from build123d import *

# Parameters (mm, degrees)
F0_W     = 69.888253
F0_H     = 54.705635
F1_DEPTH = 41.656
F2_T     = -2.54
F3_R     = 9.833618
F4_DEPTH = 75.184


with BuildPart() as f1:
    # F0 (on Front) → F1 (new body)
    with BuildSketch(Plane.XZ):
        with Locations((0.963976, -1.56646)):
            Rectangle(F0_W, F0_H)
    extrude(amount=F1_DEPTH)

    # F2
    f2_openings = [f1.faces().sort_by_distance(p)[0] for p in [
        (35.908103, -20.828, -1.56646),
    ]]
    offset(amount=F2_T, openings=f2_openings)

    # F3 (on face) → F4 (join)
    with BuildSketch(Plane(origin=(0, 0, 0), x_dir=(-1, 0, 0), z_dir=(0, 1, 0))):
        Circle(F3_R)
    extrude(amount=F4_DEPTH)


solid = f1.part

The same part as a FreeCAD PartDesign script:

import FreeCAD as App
import Part
import Sketcher

V = App.Vector
Q = App.Units.Quantity


def faces_at(feature, points):
    """Names of the faces that lie closest to the given points."""
    faces = feature.Shape.Faces
    near = lambda p: min(range(len(faces)), key=lambda i: faces[i].distToShape(Part.Vertex(*p))[0])
    return sorted({f"Face{near(p) + 1}" for p in points})


def add_polygon(sketch, points):
    """Adds a closed chain of lines whose ends are joined by coincident constraints."""
    first, n = sketch.GeometryCount, len(points)
    for a, b in zip(points, points[1:] + points[:1]):
        sketch.addGeometry(Part.LineSegment(App.Vector(*a, 0), App.Vector(*b, 0)), False)
    for i in range(n):
        sketch.addConstraint(Sketcher.Constraint("Coincident", first + i, 2, first + (i + 1) % n, 1))

doc = App.newDocument("Part")
params = doc.addObject("Spreadsheet::Sheet", "Params")
for row, (alias, value) in enumerate([
    ("pad1_length", "1.64 in"),
    ("thickness_wall", "0.1 in"),
    ("pad2_length", "2.96 in"),
], start=1):
    params.set(f"A{row}", alias)
    params.set(f"B{row}", "=" + value)
    params.setAlias(f"B{row}", alias)

body = doc.addObject("PartDesign::Body", "Body")

# Sketch on XZ plane
sketch1 = body.newObject("Sketcher::SketchObject", "Sketch")
sketch1.AttachmentSupport = (doc.getObject("XZ_Plane"), [""])
sketch1.MapMode = "FlatFace"
add_polygon(sketch1, [(-34, 26), (-34, -29), (36, -29), (36, 26)])  # lines 0-3
sketch1.addConstraint(Sketcher.Constraint("Vertical", 0))
sketch1.addConstraint(Sketcher.Constraint("Horizontal", 1))
sketch1.addConstraint(Sketcher.Constraint("Vertical", 2))
sketch1.addConstraint(Sketcher.Constraint("Horizontal", 3))
sketch1.addConstraint(Sketcher.Constraint("DistanceX", 1, 1, 1, 2, Q("69.888253 mm")))
sketch1.addConstraint(Sketcher.Constraint("DistanceY", 0, 2, 0, 1, Q("54.705635 mm")))
sketch1.addConstraint(Sketcher.Constraint("DistanceX", 0, 2, -1, 1, Q("33.980151 mm")))
sketch1.addConstraint(Sketcher.Constraint("DistanceY", 0, 2, -1, 1, Q("28.919277 mm")))
pad1 = body.newObject("PartDesign::Pad", "Pad")
pad1.Profile = sketch1
pad1.setExpression("Length", "Params.pad1_length")
doc.recompute()

thickness = body.newObject("PartDesign::Thickness", "Thickness")
thickness.Base = (pad1, faces_at(pad1, [(35.908, -20.828, -1.566)]))
thickness.setExpression("Value", "Params.thickness_wall")
thickness.Reversed = True
thickness.Join = "Arc"

# Sketch on XZ plane
sketch2 = body.newObject("Sketcher::SketchObject", "Sketch001")
sketch2.AttachmentSupport = (doc.getObject("XZ_Plane"), [""])
sketch2.MapMode = "FlatFace"
sketch2.addGeometry(Part.Circle(V(0, 0, 0), V(0, 0, 1), 10), False)
sketch2.addConstraint(Sketcher.Constraint("Coincident", 0, 3, -1, 1))
sketch2.addConstraint(Sketcher.Constraint("Diameter", 0, Q("19.667236 mm")))
pad2 = body.newObject("PartDesign::Pad", "Pad001")
pad2.Profile = sketch2
pad2.setExpression("Length", "Params.pad2_length")
pad2.Reversed = True

doc.recompute()
